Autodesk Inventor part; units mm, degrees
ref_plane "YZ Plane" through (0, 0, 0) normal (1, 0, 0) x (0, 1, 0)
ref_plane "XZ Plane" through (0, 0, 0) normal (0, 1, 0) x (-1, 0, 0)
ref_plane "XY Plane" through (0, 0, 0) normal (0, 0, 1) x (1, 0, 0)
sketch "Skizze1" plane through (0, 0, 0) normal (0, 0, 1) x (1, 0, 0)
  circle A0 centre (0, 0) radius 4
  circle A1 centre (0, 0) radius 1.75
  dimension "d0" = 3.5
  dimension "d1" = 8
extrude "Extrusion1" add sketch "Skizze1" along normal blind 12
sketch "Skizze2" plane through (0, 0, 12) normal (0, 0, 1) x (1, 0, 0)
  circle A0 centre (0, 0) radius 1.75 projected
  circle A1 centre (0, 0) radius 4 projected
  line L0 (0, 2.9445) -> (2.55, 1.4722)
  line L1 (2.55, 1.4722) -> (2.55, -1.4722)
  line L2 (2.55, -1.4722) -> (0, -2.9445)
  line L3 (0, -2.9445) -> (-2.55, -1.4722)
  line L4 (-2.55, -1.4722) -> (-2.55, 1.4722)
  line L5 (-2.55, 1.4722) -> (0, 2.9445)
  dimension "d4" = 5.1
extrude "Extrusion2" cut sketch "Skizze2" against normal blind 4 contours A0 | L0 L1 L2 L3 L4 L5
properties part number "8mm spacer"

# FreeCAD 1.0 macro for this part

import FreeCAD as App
import Part
import Sketcher

V = App.Vector
Q = App.Units.Quantity

doc = App.newDocument("Part")
params = doc.addObject("Spreadsheet::Sheet", "Params")
for row, (alias, value) in enumerate([
    ("sketch1_diameter", "8 mm"),
    ("sketch1_diameter2", "3.5 mm"),
    ("pad1_length", "12 mm"),
    ("pocket1_length", "4 mm"),
], start=1):
    params.set(f"A{row}", alias)
    params.set(f"B{row}", "=" + value)
    params.setAlias(f"B{row}", alias)

body = doc.addObject("PartDesign::Body", "Body")

sketch1 = body.newObject("Sketcher::SketchObject", "Sketch")
sketch1.AttachmentSupport = (doc.getObject("XY_Plane"), [""])
sketch1.MapMode = "FlatFace"
sketch1.addGeometry([
    Part.Circle(V(0, 0, 0), V(0, 0, 1), 4),
    Part.Circle(V(0, 0, 0), V(0, 0, 1), 1.8),
], False)
sketch1.addConstraint([
    Sketcher.Constraint("Coincident", 0, 3, -1, 1),
    Sketcher.Constraint("Coincident", 1, 3, -1, 1),
    Sketcher.Constraint("Diameter", 0, Q("8 mm")),
    Sketcher.Constraint("Diameter", 1, Q("3.5 mm")),
])
sketch1.setExpression("Constraints[2]", "Params.sketch1_diameter")
sketch1.setExpression("Constraints[3]", "Params.sketch1_diameter2")
pad1 = body.newObject("PartDesign::Pad", "Pad")
pad1.Profile = sketch1
pad1.setExpression("Length", "Params.pad1_length")

sketch2 = body.newObject("Sketcher::SketchObject", "Sketch001")
sketch2.AttachmentSupport = (doc.getObject("XY_Plane"), [""])
sketch2.MapMode = "FlatFace"
sketch2.AttachmentOffset = App.Placement(V(0, 0, 12), App.Rotation())
sketch2.addGeometry([
    Part.LineSegment(V(2.5, 1.5, 0), V(0, 2.9, 0)),
    Part.LineSegment(V(0, 2.9, 0), V(-2.5, 1.5, 0)),
    Part.LineSegment(V(-2.5, 1.5, 0), V(-2.5, -1.5, 0)),
    Part.LineSegment(V(-2.5, -1.5, 0), V(0, -2.9, 0)),
    Part.LineSegment(V(0, -2.9, 0), V(2.5, -1.5, 0)),
    Part.LineSegment(V(2.5, -1.5, 0), V(2.5, 1.5, 0)),
], False)
sketch2.addConstraint([
    Sketcher.Constraint("Coincident", 0, 2, 1, 1),
    Sketcher.Constraint("Coincident", 1, 2, 2, 1),
    Sketcher.Constraint("Coincident", 2, 2, 3, 1),
    Sketcher.Constraint("Coincident", 3, 2, 4, 1),
    Sketcher.Constraint("Coincident", 4, 2, 5, 1),
    Sketcher.Constraint("Coincident", 5, 2, 0, 1),
    Sketcher.Constraint("Vertical", 2),
    Sketcher.Constraint("Vertical", 5),
    Sketcher.Constraint("Symmetric", 0, 2, 3, 2, -1, 1),
    Sketcher.Constraint("Symmetric", 1, 2, 4, 2, -1, 1),
    Sketcher.Constraint("PointOnObject", 0, 2, -2),
    Sketcher.Constraint("Parallel", 0, 3),
    Sketcher.Constraint("Horizontal", 2, 2, 4, 2),
    Sketcher.Constraint("DistanceX", 2, 2, 4, 2, Q("5.1 mm")),
    Sketcher.Constraint("Angle", 0, Q("149.999 deg")),
    Sketcher.Constraint("DistanceY", 2, 2, 2, 1, Q("2.9444 mm")),
])
pocket1 = body.newObject("PartDesign::Pocket", "Pocket")
pocket1.Profile = sketch2
pocket1.setExpression("Length", "Params.pocket1_length")

doc.recompute()
